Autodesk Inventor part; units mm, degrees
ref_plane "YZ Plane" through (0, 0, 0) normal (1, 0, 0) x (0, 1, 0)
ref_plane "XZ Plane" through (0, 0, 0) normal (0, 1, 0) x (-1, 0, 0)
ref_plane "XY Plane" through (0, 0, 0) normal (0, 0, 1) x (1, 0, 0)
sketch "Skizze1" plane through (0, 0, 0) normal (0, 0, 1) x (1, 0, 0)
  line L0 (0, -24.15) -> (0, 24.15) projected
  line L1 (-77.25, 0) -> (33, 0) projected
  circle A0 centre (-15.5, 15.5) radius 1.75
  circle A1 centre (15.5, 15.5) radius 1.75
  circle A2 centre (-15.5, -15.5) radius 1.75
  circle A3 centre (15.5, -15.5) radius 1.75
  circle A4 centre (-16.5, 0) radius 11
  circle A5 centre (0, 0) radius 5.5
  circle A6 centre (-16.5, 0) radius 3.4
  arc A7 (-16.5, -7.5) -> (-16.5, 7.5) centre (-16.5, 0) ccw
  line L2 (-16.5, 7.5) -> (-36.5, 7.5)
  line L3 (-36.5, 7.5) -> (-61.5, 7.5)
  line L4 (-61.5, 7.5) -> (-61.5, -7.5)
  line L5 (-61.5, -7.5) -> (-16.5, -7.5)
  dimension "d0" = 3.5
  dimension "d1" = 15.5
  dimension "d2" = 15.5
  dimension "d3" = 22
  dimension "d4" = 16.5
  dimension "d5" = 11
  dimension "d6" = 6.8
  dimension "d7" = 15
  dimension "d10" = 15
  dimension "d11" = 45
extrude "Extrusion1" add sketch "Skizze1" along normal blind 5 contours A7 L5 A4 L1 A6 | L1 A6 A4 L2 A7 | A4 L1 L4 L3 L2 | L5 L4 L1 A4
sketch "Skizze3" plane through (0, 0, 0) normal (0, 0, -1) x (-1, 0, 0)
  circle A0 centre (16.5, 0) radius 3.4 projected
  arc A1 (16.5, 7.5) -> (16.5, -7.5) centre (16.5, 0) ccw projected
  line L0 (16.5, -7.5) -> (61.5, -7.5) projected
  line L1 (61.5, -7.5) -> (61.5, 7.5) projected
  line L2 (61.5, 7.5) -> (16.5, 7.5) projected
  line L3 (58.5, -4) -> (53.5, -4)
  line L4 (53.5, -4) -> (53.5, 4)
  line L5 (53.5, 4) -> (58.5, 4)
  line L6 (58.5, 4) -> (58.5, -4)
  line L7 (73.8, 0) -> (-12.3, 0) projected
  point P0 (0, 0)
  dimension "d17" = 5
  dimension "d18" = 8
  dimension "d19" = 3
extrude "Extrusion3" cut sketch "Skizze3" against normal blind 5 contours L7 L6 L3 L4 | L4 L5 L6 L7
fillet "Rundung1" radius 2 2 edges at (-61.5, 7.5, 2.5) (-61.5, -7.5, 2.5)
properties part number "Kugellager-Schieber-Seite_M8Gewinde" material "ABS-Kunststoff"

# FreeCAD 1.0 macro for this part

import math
import FreeCAD as App
import Part
import Sketcher

V = App.Vector
Q = App.Units.Quantity


def edges_at(feature, points):
    """Names of the edges that pass closest to the given points."""
    edges = feature.Shape.Edges
    near = lambda p: min(range(len(edges)), key=lambda i: edges[i].distToShape(Part.Vertex(*p))[0])
    return sorted({f"Edge{near(p) + 1}" for p in points})

doc = App.newDocument("Part")
body = doc.addObject("PartDesign::Body", "Body")

# Sketch on XY plane
sketch1 = body.newObject("Sketcher::SketchObject", "Sketch")
sketch1.AttachmentSupport = (doc.getObject("XY_Plane"), [""])
sketch1.MapMode = "FlatFace"
sketch1.addGeometry(Part.ArcOfCircle(Part.Circle(V(-16.5, 0, 0), V(0, 0, 1), 7.5), math.radians(-90), math.radians(90)), False)
sketch1.addGeometry(Part.LineSegment(V(-16.5, 7.5, 0), V(-61.5, 7.5, 0)), False)
sketch1.addGeometry(Part.LineSegment(V(-61.5, 7.5, 0), V(-61.5, -7.5, 0)), False)
sketch1.addGeometry(Part.LineSegment(V(-61.5, -7.5, 0), V(-16.5, -7.5, 0)), False)
sketch1.addGeometry(Part.Circle(V(-16.5, 0, 0), V(0, 0, 1), 3.4), False)
sketch1.addConstraint(Sketcher.Constraint("Tangent", 0, 2, 1, 1))
sketch1.addConstraint(Sketcher.Constraint("Coincident", 1, 2, 2, 1))
sketch1.addConstraint(Sketcher.Constraint("Coincident", 2, 2, 3, 1))
sketch1.addConstraint(Sketcher.Constraint("Tangent", 3, 2, 0, 1))
sketch1.addConstraint(Sketcher.Constraint("Horizontal", 1))
sketch1.addConstraint(Sketcher.Constraint("Vertical", 2))
sketch1.addConstraint(Sketcher.Constraint("Horizontal", 3))
sketch1.addConstraint(Sketcher.Constraint("Coincident", 4, 3, 0, 3))
sketch1.addConstraint(Sketcher.Constraint("PointOnObject", 0, 3, -1))
sketch1.addConstraint(Sketcher.Constraint("Diameter", 4, Q("6.8 mm")))
sketch1.addConstraint(Sketcher.Constraint("Radius", 0, Q("7.5 mm")))
sketch1.addConstraint(Sketcher.Constraint("DistanceX", 1, 2, 1, 1, Q("45 mm")))
sketch1.addConstraint(Sketcher.Constraint("DistanceX", 0, 3, -1, 1, Q("16.5 mm")))
pad1 = body.newObject("PartDesign::Pad", "Pad")
pad1.Profile = sketch1
pad1.Length = 5

# Sketch on XY plane
sketch2 = body.newObject("Sketcher::SketchObject", "Sketch001")
sketch2.AttachmentSupport = (doc.getObject("XY_Plane"), [""])
sketch2.MapMode = "FlatFace"
sketch2.addGeometry(Part.LineSegment(V(-58, -4, 0), V(-58, 4, 0)), False)
sketch2.addGeometry(Part.LineSegment(V(-58, 4, 0), V(-54, 4, 0)), False)
sketch2.addGeometry(Part.LineSegment(V(-54, 4, 0), V(-54, -4, 0)), False)
sketch2.addGeometry(Part.LineSegment(V(-54, -4, 0), V(-58, -4, 0)), False)
sketch2.addConstraint(Sketcher.Constraint("Coincident", 0, 2, 1, 1))
sketch2.addConstraint(Sketcher.Constraint("Coincident", 1, 2, 2, 1))
sketch2.addConstraint(Sketcher.Constraint("Coincident", 2, 2, 3, 1))
sketch2.addConstraint(Sketcher.Constraint("Coincident", 3, 2, 0, 1))
sketch2.addConstraint(Sketcher.Constraint("Vertical", 0))
sketch2.addConstraint(Sketcher.Constraint("Horizontal", 1))
sketch2.addConstraint(Sketcher.Constraint("Vertical", 2))
sketch2.addConstraint(Sketcher.Constraint("Horizontal", 3))
sketch2.addConstraint(Sketcher.Constraint("DistanceX", 1, 1, 1, 2, Q("5 mm")))
sketch2.addConstraint(Sketcher.Constraint("DistanceY", 0, 1, 0, 2, Q("8 mm")))
sketch2.addConstraint(Sketcher.Constraint("DistanceY", -1, 1, 0, 2, Q("4 mm")))
sketch2.addConstraint(Sketcher.Constraint("DistanceX", 0, 2, -1, 1, Q("58.5 mm")))
pocket1 = body.newObject("PartDesign::Pocket", "Pocket")
pocket1.Profile = sketch2
pocket1.Length = 5
pocket1.Reversed = True
doc.recompute()

fillet = body.newObject("PartDesign::Fillet", "Fillet")
fillet.Base = (pocket1, edges_at(pocket1, [(-61.5, 7.5, 2.5), (-61.5, -7.5, 2.5)]))
fillet.Radius = 2

doc.recompute()
